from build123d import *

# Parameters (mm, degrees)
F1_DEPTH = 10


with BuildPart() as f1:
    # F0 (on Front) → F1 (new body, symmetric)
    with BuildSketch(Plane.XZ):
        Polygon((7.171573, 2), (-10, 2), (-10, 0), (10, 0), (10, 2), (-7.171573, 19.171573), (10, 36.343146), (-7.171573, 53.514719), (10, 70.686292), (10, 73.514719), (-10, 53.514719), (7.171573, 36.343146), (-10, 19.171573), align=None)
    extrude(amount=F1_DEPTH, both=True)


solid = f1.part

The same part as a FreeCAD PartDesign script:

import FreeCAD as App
import Part
import Sketcher

V = App.Vector


def add_polygon(sketch, points):
    """Adds a closed chain of lines whose ends are joined by coincident constraints."""
    first, n = sketch.GeometryCount, len(points)
    for a, b in zip(points, points[1:] + points[:1]):
        sketch.addGeometry(Part.LineSegment(App.Vector(*a, 0), App.Vector(*b, 0)), False)
    for i in range(n):
        sketch.addConstraint(Sketcher.Constraint("Coincident", first + i, 2, first + (i + 1) % n, 1))

doc = App.newDocument("Part")
body = doc.addObject("PartDesign::Body", "Body")

sketch1 = doc.addObject("Sketcher::SketchObject", "Sketch")
body.addObject(sketch1)
sketch1.AttachmentSupport = (doc.XZ_Plane, [""])
sketch1.MapMode = "FlatFace"
add_polygon(sketch1, [(7.2, 2), (-10, 2), (-10, 0), (10, 0), (10, 2), (-7.2, 19.2), (10, 36.3), (-7.2, 53.5), (10, 70.7), (10, 73.5), (-10, 53.5), (7.2, 36.3), (-10, 19.2)])
sketch1.addConstraint(Sketcher.Constraint("Horizontal", 0))
sketch1.addConstraint(Sketcher.Constraint("Vertical", 1))
sketch1.addConstraint(Sketcher.Constraint("Horizontal", 2))
sketch1.addConstraint(Sketcher.Constraint("Vertical", 3))
sketch1.addConstraint(Sketcher.Constraint("Vertical", 8))
sketch1.addConstraint(Sketcher.Constraint("Symmetric", 1, 2, 2, 2, -1, 1))
sketch1.addConstraint(Sketcher.Constraint("Perpendicular", 4, 5))
sketch1.addConstraint(Sketcher.Constraint("Perpendicular", 5, 6))
sketch1.addConstraint(Sketcher.Constraint("Perpendicular", 6, 7))
sketch1.addConstraint(Sketcher.Constraint("Parallel", 7, 9))
sketch1.addConstraint(Sketcher.Constraint("Perpendicular", 9, 10))
sketch1.addConstraint(Sketcher.Constraint("Perpendicular", 10, 11))
sketch1.addConstraint(Sketcher.Constraint("Perpendicular", 11, 12))
sketch1.addConstraint(Sketcher.Constraint("Horizontal", 0, 2, 3, 2))
sketch1.addConstraint(Sketcher.Constraint("Horizontal", 6, 2, 9, 2))
sketch1.addConstraint(Sketcher.Constraint("Horizontal", 5, 2, 10, 2))
sketch1.addConstraint(Sketcher.Constraint("Horizontal", 4, 2, 11, 2))
sketch1.addConstraint(Sketcher.Constraint("Vertical", 3, 2, 5, 2))
sketch1.addConstraint(Sketcher.Constraint("Vertical", 4, 2, 6, 2))
sketch1.addConstraint(Sketcher.Constraint("Vertical", 5, 2, 7, 2))
sketch1.addConstraint(Sketcher.Constraint("Vertical", 1, 2, 9, 2))
sketch1.addConstraint(Sketcher.Constraint("Equal", 4, 5))
sketch1.addConstraint(Sketcher.Constraint("DistanceX", 2, 1, 2, 2, 20.0))
sketch1.addConstraint(Sketcher.Constraint("DistanceY", 1, 2, 1, 1, 2.0))
sketch1.addConstraint(Sketcher.Constraint("Distance", 4, 24.284271))
pad1 = doc.addObject("PartDesign::Pad", "Pad")
body.addObject(pad1)
pad1.Profile = sketch1
pad1.Length = 20
pad1.Midplane = True

doc.recompute()
